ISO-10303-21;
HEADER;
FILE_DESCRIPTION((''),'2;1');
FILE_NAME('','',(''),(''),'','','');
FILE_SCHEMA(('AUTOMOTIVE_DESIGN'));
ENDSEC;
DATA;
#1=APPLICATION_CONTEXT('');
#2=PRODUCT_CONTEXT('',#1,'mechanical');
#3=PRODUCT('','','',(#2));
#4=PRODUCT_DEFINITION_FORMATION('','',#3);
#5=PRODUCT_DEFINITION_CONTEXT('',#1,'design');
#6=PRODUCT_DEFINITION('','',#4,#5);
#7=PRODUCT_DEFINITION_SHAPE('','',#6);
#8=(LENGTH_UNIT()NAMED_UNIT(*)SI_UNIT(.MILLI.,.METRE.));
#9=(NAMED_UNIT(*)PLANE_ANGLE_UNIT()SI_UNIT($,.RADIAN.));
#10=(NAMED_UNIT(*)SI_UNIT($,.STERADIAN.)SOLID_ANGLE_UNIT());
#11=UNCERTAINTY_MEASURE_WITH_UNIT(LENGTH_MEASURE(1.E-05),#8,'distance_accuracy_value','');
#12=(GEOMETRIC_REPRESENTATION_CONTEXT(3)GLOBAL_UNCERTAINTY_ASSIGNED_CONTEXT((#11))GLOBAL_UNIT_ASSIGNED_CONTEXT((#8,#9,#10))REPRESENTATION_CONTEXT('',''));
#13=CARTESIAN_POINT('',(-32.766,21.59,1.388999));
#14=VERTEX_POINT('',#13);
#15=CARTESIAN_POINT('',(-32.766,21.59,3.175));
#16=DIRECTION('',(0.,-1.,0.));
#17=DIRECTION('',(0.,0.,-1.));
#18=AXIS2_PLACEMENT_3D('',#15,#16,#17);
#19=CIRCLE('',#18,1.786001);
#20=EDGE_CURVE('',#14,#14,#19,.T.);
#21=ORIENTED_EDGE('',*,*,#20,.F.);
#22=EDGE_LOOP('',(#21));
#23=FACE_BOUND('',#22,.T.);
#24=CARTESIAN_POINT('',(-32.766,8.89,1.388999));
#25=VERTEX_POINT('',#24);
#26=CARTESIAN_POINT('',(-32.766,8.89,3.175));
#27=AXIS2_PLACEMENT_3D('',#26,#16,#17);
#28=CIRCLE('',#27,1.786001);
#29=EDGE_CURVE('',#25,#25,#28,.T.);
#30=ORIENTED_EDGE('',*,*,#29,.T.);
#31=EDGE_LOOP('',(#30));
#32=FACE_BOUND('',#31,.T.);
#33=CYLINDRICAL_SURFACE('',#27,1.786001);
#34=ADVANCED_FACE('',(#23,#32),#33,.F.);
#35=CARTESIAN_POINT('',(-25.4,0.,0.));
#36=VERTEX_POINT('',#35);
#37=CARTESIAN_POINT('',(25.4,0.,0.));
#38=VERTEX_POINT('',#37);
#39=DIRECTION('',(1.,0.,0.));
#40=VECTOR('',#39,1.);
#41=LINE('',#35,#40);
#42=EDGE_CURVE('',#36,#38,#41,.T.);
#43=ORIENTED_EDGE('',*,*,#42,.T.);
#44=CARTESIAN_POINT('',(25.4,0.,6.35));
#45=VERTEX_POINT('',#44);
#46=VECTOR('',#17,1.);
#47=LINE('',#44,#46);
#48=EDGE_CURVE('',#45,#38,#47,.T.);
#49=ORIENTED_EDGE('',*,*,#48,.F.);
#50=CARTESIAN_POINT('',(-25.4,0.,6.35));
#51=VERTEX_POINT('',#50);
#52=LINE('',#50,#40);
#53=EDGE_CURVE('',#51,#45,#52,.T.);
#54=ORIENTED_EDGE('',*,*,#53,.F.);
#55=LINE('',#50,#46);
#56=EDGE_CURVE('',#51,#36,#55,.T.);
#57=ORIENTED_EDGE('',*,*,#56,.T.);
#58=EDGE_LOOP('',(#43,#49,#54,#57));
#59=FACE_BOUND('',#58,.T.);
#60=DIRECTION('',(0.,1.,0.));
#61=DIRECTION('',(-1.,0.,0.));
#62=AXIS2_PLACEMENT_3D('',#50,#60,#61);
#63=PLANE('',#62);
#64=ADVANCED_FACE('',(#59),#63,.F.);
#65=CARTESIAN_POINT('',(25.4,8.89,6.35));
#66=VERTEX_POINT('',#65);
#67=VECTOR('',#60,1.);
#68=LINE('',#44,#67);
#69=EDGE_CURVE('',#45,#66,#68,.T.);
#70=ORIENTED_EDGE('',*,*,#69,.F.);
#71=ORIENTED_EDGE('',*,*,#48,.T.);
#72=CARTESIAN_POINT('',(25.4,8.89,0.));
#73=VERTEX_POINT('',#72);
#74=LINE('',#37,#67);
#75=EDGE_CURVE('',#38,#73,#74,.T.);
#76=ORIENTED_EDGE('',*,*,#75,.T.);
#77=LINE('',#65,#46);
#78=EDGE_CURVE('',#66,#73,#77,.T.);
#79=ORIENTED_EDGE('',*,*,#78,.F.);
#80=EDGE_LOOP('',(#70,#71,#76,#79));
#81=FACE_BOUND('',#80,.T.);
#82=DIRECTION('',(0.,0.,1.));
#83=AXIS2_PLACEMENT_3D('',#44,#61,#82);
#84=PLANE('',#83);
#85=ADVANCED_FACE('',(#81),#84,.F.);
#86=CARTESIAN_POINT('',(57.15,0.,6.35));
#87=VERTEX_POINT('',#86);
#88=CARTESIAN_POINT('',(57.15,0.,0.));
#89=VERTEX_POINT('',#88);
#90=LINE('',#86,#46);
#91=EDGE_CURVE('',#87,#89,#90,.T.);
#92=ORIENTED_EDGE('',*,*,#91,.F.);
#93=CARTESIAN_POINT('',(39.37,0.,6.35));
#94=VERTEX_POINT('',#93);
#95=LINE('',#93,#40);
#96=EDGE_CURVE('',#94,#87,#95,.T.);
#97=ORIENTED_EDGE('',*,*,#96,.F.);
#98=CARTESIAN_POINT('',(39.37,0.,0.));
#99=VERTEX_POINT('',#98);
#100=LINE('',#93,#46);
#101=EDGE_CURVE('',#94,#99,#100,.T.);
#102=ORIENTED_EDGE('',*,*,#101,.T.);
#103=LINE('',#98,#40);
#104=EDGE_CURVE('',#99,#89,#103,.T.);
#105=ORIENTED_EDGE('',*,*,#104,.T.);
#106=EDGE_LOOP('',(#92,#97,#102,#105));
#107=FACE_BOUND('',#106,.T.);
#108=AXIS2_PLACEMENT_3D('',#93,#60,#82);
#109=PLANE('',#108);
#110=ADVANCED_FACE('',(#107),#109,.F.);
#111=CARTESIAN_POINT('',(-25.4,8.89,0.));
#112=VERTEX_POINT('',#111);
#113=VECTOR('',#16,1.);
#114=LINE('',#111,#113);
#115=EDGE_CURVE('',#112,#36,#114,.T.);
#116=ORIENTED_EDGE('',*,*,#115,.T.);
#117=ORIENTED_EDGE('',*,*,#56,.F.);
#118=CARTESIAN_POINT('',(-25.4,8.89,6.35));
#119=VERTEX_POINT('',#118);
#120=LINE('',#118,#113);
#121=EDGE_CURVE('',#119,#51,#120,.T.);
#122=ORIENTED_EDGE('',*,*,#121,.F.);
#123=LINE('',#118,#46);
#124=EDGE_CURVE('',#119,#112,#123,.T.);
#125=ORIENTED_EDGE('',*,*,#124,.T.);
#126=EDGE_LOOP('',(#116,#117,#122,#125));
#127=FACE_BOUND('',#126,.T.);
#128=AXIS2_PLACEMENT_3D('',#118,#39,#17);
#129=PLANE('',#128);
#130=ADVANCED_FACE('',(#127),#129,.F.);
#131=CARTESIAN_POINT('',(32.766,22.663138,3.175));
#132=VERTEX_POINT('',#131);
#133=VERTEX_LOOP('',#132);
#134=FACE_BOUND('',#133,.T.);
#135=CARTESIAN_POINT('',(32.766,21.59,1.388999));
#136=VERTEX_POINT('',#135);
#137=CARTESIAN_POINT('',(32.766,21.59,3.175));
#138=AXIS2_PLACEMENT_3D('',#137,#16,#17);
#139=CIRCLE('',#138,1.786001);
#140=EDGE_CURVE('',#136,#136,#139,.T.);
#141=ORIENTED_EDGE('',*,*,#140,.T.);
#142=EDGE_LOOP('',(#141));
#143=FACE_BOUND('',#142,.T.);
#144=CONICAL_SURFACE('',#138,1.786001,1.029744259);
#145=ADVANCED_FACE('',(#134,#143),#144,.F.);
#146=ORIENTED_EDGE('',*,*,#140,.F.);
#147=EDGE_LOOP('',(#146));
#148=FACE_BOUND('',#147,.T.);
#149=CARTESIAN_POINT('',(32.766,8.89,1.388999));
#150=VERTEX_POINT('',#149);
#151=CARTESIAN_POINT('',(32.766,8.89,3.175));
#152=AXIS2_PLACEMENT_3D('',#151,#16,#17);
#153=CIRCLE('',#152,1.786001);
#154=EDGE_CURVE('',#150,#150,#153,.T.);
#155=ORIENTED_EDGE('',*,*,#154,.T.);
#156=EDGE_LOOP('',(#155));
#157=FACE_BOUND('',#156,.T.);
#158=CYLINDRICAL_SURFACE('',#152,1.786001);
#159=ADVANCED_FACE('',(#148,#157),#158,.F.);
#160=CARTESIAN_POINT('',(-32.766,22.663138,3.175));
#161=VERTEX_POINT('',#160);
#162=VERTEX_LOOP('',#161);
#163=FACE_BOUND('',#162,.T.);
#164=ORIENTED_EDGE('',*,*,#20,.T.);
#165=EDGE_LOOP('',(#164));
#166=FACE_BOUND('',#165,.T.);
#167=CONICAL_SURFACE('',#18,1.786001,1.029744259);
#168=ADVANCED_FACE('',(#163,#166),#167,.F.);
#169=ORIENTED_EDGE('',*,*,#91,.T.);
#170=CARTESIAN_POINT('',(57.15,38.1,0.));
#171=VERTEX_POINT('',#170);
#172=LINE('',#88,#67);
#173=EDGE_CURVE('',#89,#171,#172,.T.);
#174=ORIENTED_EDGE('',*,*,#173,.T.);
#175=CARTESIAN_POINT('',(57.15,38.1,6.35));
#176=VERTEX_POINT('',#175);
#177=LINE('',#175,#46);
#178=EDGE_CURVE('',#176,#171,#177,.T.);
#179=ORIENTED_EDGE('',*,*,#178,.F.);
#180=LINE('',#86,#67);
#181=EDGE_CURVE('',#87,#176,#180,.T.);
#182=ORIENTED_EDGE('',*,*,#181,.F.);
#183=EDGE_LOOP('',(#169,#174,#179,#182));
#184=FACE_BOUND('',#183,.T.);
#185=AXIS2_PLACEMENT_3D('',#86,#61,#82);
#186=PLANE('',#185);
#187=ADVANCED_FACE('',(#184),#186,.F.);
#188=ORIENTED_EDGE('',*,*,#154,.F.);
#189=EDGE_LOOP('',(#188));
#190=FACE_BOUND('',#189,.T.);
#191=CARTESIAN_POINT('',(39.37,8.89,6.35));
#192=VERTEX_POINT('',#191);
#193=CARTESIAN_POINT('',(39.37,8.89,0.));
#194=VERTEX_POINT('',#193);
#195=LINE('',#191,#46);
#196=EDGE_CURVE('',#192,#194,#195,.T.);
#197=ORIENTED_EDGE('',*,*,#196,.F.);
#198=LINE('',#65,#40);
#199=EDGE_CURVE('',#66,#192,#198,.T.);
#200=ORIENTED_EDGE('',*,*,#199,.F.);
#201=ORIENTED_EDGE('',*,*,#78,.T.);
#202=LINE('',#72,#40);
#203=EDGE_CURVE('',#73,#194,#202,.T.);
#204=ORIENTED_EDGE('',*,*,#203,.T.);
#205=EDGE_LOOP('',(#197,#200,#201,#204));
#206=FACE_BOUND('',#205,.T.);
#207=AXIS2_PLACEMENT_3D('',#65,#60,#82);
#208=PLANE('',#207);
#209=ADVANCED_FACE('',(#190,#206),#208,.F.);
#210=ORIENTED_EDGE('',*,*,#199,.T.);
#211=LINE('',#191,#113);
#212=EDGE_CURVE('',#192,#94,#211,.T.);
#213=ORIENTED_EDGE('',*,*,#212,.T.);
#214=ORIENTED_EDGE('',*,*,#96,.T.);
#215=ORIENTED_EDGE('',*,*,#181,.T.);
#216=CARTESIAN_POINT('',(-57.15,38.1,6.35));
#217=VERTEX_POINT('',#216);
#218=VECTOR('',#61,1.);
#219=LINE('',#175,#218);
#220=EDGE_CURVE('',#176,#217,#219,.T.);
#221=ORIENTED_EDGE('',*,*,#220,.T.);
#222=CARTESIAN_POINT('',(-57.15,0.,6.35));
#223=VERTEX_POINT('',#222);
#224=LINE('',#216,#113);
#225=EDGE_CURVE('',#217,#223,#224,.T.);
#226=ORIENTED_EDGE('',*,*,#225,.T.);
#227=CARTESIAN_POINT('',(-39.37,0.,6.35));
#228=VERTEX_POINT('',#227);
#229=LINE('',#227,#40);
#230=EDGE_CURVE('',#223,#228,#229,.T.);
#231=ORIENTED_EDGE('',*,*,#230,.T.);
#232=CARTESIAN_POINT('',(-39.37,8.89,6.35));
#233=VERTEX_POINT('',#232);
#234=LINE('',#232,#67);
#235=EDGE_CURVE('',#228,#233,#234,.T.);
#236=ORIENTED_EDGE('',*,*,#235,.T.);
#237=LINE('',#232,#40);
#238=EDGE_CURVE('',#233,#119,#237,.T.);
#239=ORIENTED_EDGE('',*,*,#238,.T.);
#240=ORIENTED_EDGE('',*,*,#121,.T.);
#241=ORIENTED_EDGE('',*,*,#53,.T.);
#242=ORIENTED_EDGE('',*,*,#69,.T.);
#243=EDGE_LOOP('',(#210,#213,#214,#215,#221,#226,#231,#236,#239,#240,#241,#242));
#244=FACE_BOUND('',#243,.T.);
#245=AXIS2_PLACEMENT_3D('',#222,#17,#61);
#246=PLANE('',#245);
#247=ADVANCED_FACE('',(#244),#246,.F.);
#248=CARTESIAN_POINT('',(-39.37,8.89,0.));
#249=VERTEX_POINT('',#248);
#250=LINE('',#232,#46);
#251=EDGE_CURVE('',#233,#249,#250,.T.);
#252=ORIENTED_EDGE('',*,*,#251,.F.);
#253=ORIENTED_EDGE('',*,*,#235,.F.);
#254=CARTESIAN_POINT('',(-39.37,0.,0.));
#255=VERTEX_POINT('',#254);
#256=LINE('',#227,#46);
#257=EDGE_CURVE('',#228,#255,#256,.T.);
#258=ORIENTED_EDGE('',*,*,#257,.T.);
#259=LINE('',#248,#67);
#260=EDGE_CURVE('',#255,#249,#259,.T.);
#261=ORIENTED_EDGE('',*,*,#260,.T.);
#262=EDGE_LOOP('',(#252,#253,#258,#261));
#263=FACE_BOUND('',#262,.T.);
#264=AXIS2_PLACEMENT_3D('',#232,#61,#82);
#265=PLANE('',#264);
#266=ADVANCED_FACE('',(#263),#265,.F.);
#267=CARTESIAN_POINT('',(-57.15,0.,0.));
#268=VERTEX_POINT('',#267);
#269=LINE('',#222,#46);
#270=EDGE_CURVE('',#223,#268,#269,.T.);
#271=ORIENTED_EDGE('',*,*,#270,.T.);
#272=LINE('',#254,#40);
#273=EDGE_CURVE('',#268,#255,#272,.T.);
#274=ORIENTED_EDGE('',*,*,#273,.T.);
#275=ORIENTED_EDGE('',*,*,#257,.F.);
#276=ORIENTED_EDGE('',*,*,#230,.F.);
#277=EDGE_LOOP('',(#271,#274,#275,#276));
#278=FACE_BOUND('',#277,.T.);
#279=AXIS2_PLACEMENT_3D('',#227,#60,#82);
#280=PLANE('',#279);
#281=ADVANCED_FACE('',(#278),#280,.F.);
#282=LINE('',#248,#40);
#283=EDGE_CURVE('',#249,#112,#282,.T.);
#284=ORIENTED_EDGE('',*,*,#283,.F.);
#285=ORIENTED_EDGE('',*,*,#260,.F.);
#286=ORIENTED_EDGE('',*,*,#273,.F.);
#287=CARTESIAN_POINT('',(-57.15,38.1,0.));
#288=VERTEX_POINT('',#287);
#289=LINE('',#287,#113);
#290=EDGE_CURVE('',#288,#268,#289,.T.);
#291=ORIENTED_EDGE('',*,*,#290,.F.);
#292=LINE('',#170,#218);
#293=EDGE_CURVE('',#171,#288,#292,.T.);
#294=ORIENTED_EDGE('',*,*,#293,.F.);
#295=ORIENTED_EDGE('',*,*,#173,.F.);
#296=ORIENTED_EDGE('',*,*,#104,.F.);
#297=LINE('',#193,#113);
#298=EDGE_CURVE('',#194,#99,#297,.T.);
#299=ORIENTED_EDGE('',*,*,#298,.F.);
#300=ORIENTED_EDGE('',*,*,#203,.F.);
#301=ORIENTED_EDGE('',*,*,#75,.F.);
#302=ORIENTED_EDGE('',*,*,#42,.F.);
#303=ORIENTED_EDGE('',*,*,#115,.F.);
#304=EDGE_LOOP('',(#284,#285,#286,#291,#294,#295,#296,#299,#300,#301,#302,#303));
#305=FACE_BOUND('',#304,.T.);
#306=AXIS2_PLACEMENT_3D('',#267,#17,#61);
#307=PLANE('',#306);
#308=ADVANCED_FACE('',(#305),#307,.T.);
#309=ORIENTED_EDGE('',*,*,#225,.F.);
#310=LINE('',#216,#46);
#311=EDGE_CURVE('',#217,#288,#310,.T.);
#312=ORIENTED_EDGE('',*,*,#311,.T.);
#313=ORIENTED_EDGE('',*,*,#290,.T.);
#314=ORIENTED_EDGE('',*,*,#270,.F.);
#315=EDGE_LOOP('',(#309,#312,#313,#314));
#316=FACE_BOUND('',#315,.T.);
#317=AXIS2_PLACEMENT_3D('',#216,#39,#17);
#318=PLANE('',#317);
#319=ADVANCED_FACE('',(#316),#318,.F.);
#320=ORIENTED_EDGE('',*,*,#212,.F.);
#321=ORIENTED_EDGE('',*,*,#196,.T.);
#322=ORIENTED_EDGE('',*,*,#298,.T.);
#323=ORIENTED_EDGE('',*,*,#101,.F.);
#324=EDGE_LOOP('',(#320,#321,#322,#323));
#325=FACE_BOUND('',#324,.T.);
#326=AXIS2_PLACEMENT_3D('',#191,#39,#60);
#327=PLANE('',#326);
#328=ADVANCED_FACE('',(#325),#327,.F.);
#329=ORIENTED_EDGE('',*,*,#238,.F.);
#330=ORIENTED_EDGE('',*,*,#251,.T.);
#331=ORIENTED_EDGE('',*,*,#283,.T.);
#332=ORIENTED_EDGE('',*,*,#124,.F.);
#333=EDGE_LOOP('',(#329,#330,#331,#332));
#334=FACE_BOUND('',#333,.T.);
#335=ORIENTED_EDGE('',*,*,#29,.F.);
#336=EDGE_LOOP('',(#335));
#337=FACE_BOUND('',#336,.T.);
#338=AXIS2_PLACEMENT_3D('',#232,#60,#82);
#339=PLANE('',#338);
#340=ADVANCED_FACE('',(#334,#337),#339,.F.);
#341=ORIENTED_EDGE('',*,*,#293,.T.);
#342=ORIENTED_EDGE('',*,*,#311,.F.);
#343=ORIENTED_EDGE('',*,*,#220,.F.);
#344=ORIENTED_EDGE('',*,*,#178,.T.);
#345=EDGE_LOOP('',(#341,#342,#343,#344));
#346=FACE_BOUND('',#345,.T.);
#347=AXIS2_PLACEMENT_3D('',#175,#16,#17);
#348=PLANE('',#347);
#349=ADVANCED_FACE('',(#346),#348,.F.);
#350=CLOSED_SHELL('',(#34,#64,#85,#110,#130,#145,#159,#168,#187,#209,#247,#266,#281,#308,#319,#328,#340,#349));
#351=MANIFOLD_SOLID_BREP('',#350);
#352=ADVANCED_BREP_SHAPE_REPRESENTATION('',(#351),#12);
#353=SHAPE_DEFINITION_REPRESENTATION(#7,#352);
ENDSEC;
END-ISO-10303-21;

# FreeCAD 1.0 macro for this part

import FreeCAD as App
import Part
import Sketcher
from FreeCAD import Vector
Q = App.Units.Quantity


def add_polygon(sketch, points):
    """Adds a closed chain of lines whose ends are joined by coincident constraints."""
    first, n = sketch.GeometryCount, len(points)
    for a, b in zip(points, points[1:] + points[:1]):
        sketch.addGeometry(Part.LineSegment(App.Vector(*a, 0), App.Vector(*b, 0)), False)
    for i in range(n):
        sketch.addConstraint(Sketcher.Constraint("Coincident", first + i, 2, first + (i + 1) % n, 1))

doc = App.newDocument("Part")
body = doc.addObject("PartDesign::Body", "Body")

# Sketch on XY plane
sketch1 = body.newObject("Sketcher::SketchObject", "Sketch")
sketch1.AttachmentSupport = (doc.getObject("XY_Plane"), [""])
sketch1.MapMode = "FlatFace"
add_polygon(sketch1, [(-39.37, 0), (-39.37, 8.89), (-25.4, 8.89), (-25.4, 0), (25.4, 0), (25.4, 8.89), (39.37, 8.89), (39.37, 0), (57.15, 0), (57.15, 38.1), (-57.15, 38.1), (-57.15, 0)])  # lines 0-11
sketch1.addConstraint([
    Sketcher.Constraint("Vertical", 0),
    Sketcher.Constraint("Horizontal", 1),
    Sketcher.Constraint("Vertical", 2),
    Sketcher.Constraint("Horizontal", 3),
    Sketcher.Constraint("Vertical", 4),
    Sketcher.Constraint("Horizontal", 5),
    Sketcher.Constraint("Vertical", 6),
    Sketcher.Constraint("Horizontal", 7),
    Sketcher.Constraint("Vertical", 8),
    Sketcher.Constraint("Horizontal", 9),
    Sketcher.Constraint("Vertical", 10),
    Sketcher.Constraint("Horizontal", 11),
    Sketcher.Constraint("Symmetric", 2, 2, 3, 2, -1, 1),
    Sketcher.Constraint("Symmetric", 7, 2, 10, 2, -1, 1),
    Sketcher.Constraint("Symmetric", 0, 2, 5, 2, -2),
    Sketcher.Constraint("PointOnObject", 6, 2, -1),
    Sketcher.Constraint("DistanceX", 3, 1, 3, 2, Q("2 in")),
    Sketcher.Constraint("DistanceX", 7, 1, 7, 2, Q("0.7 in")),
    Sketcher.Constraint("DistanceX", 9, 2, 9, 1, Q("4.5 in")),
    Sketcher.Constraint("DistanceY", 8, 1, 8, 2, Q("1.5 in")),
    Sketcher.Constraint("DistanceY", 0, 1, 0, 2, Q("0.35 in")),
])
pad1 = body.newObject("PartDesign::Pad", "Pad")
pad1.Profile = sketch1
pad1.Length = Q("0.25 in")

# Sketch on XZ plane
sketch2 = body.newObject("Sketcher::SketchObject", "Sketch001")
sketch2.AttachmentSupport = (doc.getObject("XZ_Plane"), [""])
sketch2.MapMode = "FlatFace"
sketch2.AttachmentOffset = App.Placement(Vector(0, 0, -0.35 * 25.4), App.Rotation())
sketch2.addGeometry([
    Part.Circle(Vector(-32.766, 3.175, 0), Vector(0, 0, 1), 1.786001),
    Part.Circle(Vector(32.766, 3.175, 0), Vector(0, 0, 1), 1.786001),
], False)
sketch2.addConstraint([
    Sketcher.Constraint("Equal", 0, 1),
    Sketcher.Constraint("Symmetric", 0, 3, 1, 3, -2),
    Sketcher.Constraint("Diameter", 0, Q("3.572002 mm")),
    Sketcher.Constraint("DistanceX", 0, 3, -1, 1, Q("1.29 in")),
    Sketcher.Constraint("DistanceY", -1, 1, 0, 3, Q("0.125 in")),
])
doc.recompute()
hole = body.newObject("PartDesign::Hole", "Hole")
hole.Profile = sketch2
hole.ThreadType = "None"
hole.Diameter = 3.572002
hole.DepthType = "Dimension"
hole.Depth = Q("0.5 in")
hole.DrillPoint = "Angled"
hole.DrillPointAngle = 118

doc.recompute()
